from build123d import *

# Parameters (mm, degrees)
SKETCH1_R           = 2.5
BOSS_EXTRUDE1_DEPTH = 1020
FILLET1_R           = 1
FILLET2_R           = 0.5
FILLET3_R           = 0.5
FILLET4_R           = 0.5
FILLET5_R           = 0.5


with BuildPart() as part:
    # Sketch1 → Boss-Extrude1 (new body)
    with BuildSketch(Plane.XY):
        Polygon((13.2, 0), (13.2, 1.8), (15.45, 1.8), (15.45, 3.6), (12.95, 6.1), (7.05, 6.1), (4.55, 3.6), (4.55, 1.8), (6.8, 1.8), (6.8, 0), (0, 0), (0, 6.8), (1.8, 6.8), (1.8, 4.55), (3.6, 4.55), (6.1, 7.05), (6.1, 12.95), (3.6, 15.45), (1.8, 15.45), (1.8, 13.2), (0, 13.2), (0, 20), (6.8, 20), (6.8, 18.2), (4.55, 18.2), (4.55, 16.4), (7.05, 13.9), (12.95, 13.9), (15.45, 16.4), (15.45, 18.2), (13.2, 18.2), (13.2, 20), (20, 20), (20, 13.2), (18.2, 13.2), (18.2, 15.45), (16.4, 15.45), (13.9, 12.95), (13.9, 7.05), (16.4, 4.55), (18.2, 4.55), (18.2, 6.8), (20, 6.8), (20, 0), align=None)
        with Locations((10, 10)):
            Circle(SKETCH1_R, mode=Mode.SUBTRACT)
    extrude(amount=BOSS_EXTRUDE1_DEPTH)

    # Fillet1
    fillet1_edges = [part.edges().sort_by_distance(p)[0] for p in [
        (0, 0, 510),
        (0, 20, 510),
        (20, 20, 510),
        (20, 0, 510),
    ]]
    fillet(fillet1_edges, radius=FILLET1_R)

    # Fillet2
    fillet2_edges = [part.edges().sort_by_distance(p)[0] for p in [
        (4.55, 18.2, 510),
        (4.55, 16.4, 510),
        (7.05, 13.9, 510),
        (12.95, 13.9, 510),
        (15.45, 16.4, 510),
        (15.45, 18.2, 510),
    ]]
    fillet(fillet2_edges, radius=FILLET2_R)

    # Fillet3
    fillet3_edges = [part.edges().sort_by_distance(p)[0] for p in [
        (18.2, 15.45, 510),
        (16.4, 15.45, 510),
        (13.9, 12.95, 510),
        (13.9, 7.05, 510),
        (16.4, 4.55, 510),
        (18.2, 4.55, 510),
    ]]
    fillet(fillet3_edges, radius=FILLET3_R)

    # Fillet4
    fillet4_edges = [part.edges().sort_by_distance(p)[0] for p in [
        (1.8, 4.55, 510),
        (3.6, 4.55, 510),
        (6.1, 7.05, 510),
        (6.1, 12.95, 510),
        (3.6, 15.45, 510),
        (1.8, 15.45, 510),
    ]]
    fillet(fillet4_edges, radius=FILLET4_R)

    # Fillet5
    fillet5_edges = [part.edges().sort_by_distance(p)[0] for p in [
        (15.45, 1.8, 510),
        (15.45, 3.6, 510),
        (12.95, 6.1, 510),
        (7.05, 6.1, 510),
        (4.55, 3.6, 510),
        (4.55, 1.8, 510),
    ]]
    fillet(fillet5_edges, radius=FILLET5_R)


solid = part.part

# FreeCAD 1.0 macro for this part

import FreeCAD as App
import Part
import Sketcher

V = App.Vector


def edges_at(feature, points):
    """Names of the edges that pass closest to the given points."""
    edges = feature.Shape.Edges
    near = lambda p: min(range(len(edges)), key=lambda i: edges[i].distToShape(Part.Vertex(*p))[0])
    return sorted({f"Edge{near(p) + 1}" for p in points})

doc = App.newDocument("Part")
body = doc.addObject("PartDesign::Body", "Body")

sketch1 = body.newObject("Sketcher::SketchObject", "Sketch")
sketch1.AttachmentSupport = (doc.getObject("XY_Plane"), [""])
sketch1.MapMode = "FlatFace"
sketch1.addGeometry(Part.LineSegment(V(13.2, 1.8, 0), V(13.2, 0, 0)), False)
sketch1.addGeometry(Part.LineSegment(V(13.2, 0, 0), V(20, 0, 0)), False)
sketch1.addGeometry(Part.LineSegment(V(20, 0, 0), V(20, 6.8, 0)), False)
sketch1.addGeometry(Part.LineSegment(V(20, 6.8, 0), V(18.2, 6.8, 0)), False)
sketch1.addGeometry(Part.LineSegment(V(18.2, 6.8, 0), V(18.2, 4.5, 0)), False)
sketch1.addGeometry(Part.LineSegment(V(18.2, 4.5, 0), V(16.4, 4.5, 0)), False)
sketch1.addGeometry(Part.LineSegment(V(16.4, 4.5, 0), V(13.9, 7, 0)), False)
sketch1.addGeometry(Part.LineSegment(V(13.9, 7, 0), V(13.9, 12.9, 0)), False)
sketch1.addGeometry(Part.LineSegment(V(13.9, 12.9, 0), V(16.4, 15.4, 0)), False)
sketch1.addGeometry(Part.LineSegment(V(16.4, 15.4, 0), V(18.2, 15.4, 0)), False)
sketch1.addGeometry(Part.LineSegment(V(18.2, 15.4, 0), V(18.2, 13.2, 0)), False)
sketch1.addGeometry(Part.LineSegment(V(18.2, 13.2, 0), V(20, 13.2, 0)), False)
sketch1.addGeometry(Part.LineSegment(V(20, 13.2, 0), V(20, 20, 0)), False)
sketch1.addGeometry(Part.LineSegment(V(20, 20, 0), V(13.2, 20, 0)), False)
sketch1.addGeometry(Part.LineSegment(V(13.2, 20, 0), V(13.2, 18.2, 0)), False)
sketch1.addGeometry(Part.LineSegment(V(13.2, 18.2, 0), V(15.4, 18.2, 0)), False)
sketch1.addGeometry(Part.LineSegment(V(15.4, 18.2, 0), V(15.4, 16.4, 0)), False)
sketch1.addGeometry(Part.LineSegment(V(15.4, 16.4, 0), V(12.9, 13.9, 0)), False)
sketch1.addGeometry(Part.LineSegment(V(12.9, 13.9, 0), V(7, 13.9, 0)), False)
sketch1.addGeometry(Part.LineSegment(V(7, 13.9, 0), V(4.5, 16.4, 0)), False)
sketch1.addGeometry(Part.LineSegment(V(4.5, 16.4, 0), V(4.5, 18.2, 0)), False)
sketch1.addGeometry(Part.LineSegment(V(4.5, 18.2, 0), V(6.8, 18.2, 0)), False)
sketch1.addGeometry(Part.LineSegment(V(6.8, 18.2, 0), V(6.8, 20, 0)), False)
sketch1.addGeometry(Part.LineSegment(V(6.8, 20, 0), V(0, 20, 0)), False)
sketch1.addGeometry(Part.LineSegment(V(0, 20, 0), V(0, 13.2, 0)), False)
sketch1.addGeometry(Part.LineSegment(V(0, 13.2, 0), V(1.8, 13.2, 0)), False)
sketch1.addGeometry(Part.LineSegment(V(1.8, 13.2, 0), V(1.8, 15.4, 0)), False)
sketch1.addGeometry(Part.LineSegment(V(1.8, 15.4, 0), V(3.6, 15.4, 0)), False)
sketch1.addGeometry(Part.LineSegment(V(3.6, 15.4, 0), V(6.1, 12.9, 0)), False)
sketch1.addGeometry(Part.LineSegment(V(6.1, 12.9, 0), V(6.1, 7, 0)), False)
sketch1.addGeometry(Part.LineSegment(V(6.1, 7, 0), V(3.6, 4.5, 0)), False)
sketch1.addGeometry(Part.LineSegment(V(3.6, 4.5, 0), V(1.8, 4.5, 0)), False)
sketch1.addGeometry(Part.LineSegment(V(1.8, 4.5, 0), V(1.8, 6.8, 0)), False)
sketch1.addGeometry(Part.LineSegment(V(1.8, 6.8, 0), V(0, 6.8, 0)), False)
sketch1.addGeometry(Part.LineSegment(V(0, 6.8, 0), V(0, 0, 0)), False)
sketch1.addGeometry(Part.LineSegment(V(0, 0, 0), V(6.8, 0, 0)), False)
sketch1.addGeometry(Part.LineSegment(V(6.8, 0, 0), V(6.8, 1.8, 0)), False)
sketch1.addGeometry(Part.LineSegment(V(6.8, 1.8, 0), V(4.5, 1.8, 0)), False)
sketch1.addGeometry(Part.LineSegment(V(4.5, 1.8, 0), V(4.5, 3.6, 0)), False)
sketch1.addGeometry(Part.LineSegment(V(4.5, 3.6, 0), V(7, 6.1, 0)), False)
sketch1.addGeometry(Part.LineSegment(V(7, 6.1, 0), V(12.9, 6.1, 0)), False)
sketch1.addGeometry(Part.LineSegment(V(12.9, 6.1, 0), V(15.4, 3.6, 0)), False)
sketch1.addGeometry(Part.LineSegment(V(15.4, 3.6, 0), V(15.4, 1.8, 0)), False)
sketch1.addGeometry(Part.LineSegment(V(15.4, 1.8, 0), V(13.2, 1.8, 0)), False)
sketch1.addGeometry(Part.Circle(V(10, 10, 0), V(0, 0, 1), 2.5), False)
sketch1.addConstraint(Sketcher.Constraint("Coincident", 0, 2, 1, 1))
sketch1.addConstraint(Sketcher.Constraint("Coincident", 1, 2, 2, 1))
sketch1.addConstraint(Sketcher.Constraint("Coincident", 2, 2, 3, 1))
sketch1.addConstraint(Sketcher.Constraint("Coincident", 3, 2, 4, 1))
sketch1.addConstraint(Sketcher.Constraint("Coincident", 4, 2, 5, 1))
sketch1.addConstraint(Sketcher.Constraint("Coincident", 5, 2, 6, 1))
sketch1.addConstraint(Sketcher.Constraint("Coincident", 6, 2, 7, 1))
sketch1.addConstraint(Sketcher.Constraint("Coincident", 7, 2, 8, 1))
sketch1.addConstraint(Sketcher.Constraint("Coincident", 8, 2, 9, 1))
sketch1.addConstraint(Sketcher.Constraint("Coincident", 9, 2, 10, 1))
sketch1.addConstraint(Sketcher.Constraint("Coincident", 10, 2, 11, 1))
sketch1.addConstraint(Sketcher.Constraint("Coincident", 11, 2, 12, 1))
sketch1.addConstraint(Sketcher.Constraint("Coincident", 12, 2, 13, 1))
sketch1.addConstraint(Sketcher.Constraint("Coincident", 13, 2, 14, 1))
sketch1.addConstraint(Sketcher.Constraint("Coincident", 14, 2, 15, 1))
sketch1.addConstraint(Sketcher.Constraint("Coincident", 15, 2, 16, 1))
sketch1.addConstraint(Sketcher.Constraint("Coincident", 16, 2, 17, 1))
sketch1.addConstraint(Sketcher.Constraint("Coincident", 17, 2, 18, 1))
sketch1.addConstraint(Sketcher.Constraint("Coincident", 18, 2, 19, 1))
sketch1.addConstraint(Sketcher.Constraint("Coincident", 19, 2, 20, 1))
sketch1.addConstraint(Sketcher.Constraint("Coincident", 20, 2, 21, 1))
sketch1.addConstraint(Sketcher.Constraint("Coincident", 21, 2, 22, 1))
sketch1.addConstraint(Sketcher.Constraint("Coincident", 22, 2, 23, 1))
sketch1.addConstraint(Sketcher.Constraint("Coincident", 23, 2, 24, 1))
sketch1.addConstraint(Sketcher.Constraint("Coincident", 24, 2, 25, 1))
sketch1.addConstraint(Sketcher.Constraint("Coincident", 25, 2, 26, 1))
sketch1.addConstraint(Sketcher.Constraint("Coincident", 26, 2, 27, 1))
sketch1.addConstraint(Sketcher.Constraint("Coincident", 27, 2, 28, 1))
sketch1.addConstraint(Sketcher.Constraint("Coincident", 28, 2, 29, 1))
sketch1.addConstraint(Sketcher.Constraint("Coincident", 29, 2, 30, 1))
sketch1.addConstraint(Sketcher.Constraint("Coincident", 30, 2, 31, 1))
sketch1.addConstraint(Sketcher.Constraint("Coincident", 31, 2, 32, 1))
sketch1.addConstraint(Sketcher.Constraint("Coincident", 32, 2, 33, 1))
sketch1.addConstraint(Sketcher.Constraint("Coincident", 33, 2, 34, 1))
sketch1.addConstraint(Sketcher.Constraint("Coincident", 34, 2, 35, 1))
sketch1.addConstraint(Sketcher.Constraint("Coincident", 35, 2, 36, 1))
sketch1.addConstraint(Sketcher.Constraint("Coincident", 36, 2, 37, 1))
sketch1.addConstraint(Sketcher.Constraint("Coincident", 37, 2, 38, 1))
sketch1.addConstraint(Sketcher.Constraint("Coincident", 38, 2, 39, 1))
sketch1.addConstraint(Sketcher.Constraint("Coincident", 39, 2, 40, 1))
sketch1.addConstraint(Sketcher.Constraint("Coincident", 40, 2, 41, 1))
sketch1.addConstraint(Sketcher.Constraint("Coincident", 41, 2, 42, 1))
sketch1.addConstraint(Sketcher.Constraint("Coincident", 42, 2, 43, 1))
sketch1.addConstraint(Sketcher.Constraint("Coincident", 43, 2, 0, 1))
sketch1.addConstraint(Sketcher.Constraint("Vertical", 0))
sketch1.addConstraint(Sketcher.Constraint("Horizontal", 1))
sketch1.addConstraint(Sketcher.Constraint("Vertical", 2))
sketch1.addConstraint(Sketcher.Constraint("Horizontal", 3))
sketch1.addConstraint(Sketcher.Constraint("Vertical", 4))
sketch1.addConstraint(Sketcher.Constraint("Horizontal", 5))
sketch1.addConstraint(Sketcher.Constraint("Vertical", 7))
sketch1.addConstraint(Sketcher.Constraint("Horizontal", 9))
sketch1.addConstraint(Sketcher.Constraint("Vertical", 10))
sketch1.addConstraint(Sketcher.Constraint("Horizontal", 11))
sketch1.addConstraint(Sketcher.Constraint("Vertical", 12))
sketch1.addConstraint(Sketcher.Constraint("Horizontal", 13))
sketch1.addConstraint(Sketcher.Constraint("Vertical", 14))
sketch1.addConstraint(Sketcher.Constraint("Horizontal", 15))
sketch1.addConstraint(Sketcher.Constraint("Vertical", 16))
sketch1.addConstraint(Sketcher.Constraint("Horizontal", 18))
sketch1.addConstraint(Sketcher.Constraint("Vertical", 20))
sketch1.addConstraint(Sketcher.Constraint("Horizontal", 21))
sketch1.addConstraint(Sketcher.Constraint("Vertical", 22))
sketch1.addConstraint(Sketcher.Constraint("Horizontal", 23))
sketch1.addConstraint(Sketcher.Constraint("Vertical", 24))
sketch1.addConstraint(Sketcher.Constraint("Horizontal", 25))
sketch1.addConstraint(Sketcher.Constraint("Vertical", 26))
sketch1.addConstraint(Sketcher.Constraint("Horizontal", 27))
sketch1.addConstraint(Sketcher.Constraint("Vertical", 29))
sketch1.addConstraint(Sketcher.Constraint("Horizontal", 31))
sketch1.addConstraint(Sketcher.Constraint("Vertical", 32))
sketch1.addConstraint(Sketcher.Constraint("Horizontal", 33))
sketch1.addConstraint(Sketcher.Constraint("Vertical", 34))
sketch1.addConstraint(Sketcher.Constraint("Horizontal", 35))
sketch1.addConstraint(Sketcher.Constraint("Vertical", 36))
sketch1.addConstraint(Sketcher.Constraint("Horizontal", 37))
sketch1.addConstraint(Sketcher.Constraint("Vertical", 38))
sketch1.addConstraint(Sketcher.Constraint("Horizontal", 40))
sketch1.addConstraint(Sketcher.Constraint("Vertical", 42))
sketch1.addConstraint(Sketcher.Constraint("Horizontal", 43))
sketch1.addConstraint(Sketcher.Constraint("Coincident", 34, 2, -1, 1))
sketch1.addConstraint(Sketcher.Constraint("PointOnObject", 0, 2, -1))
sketch1.addConstraint(Sketcher.Constraint("PointOnObject", 23, 2, -2))
sketch1.addConstraint(Sketcher.Constraint("Perpendicular", 6, 8))
sketch1.addConstraint(Sketcher.Constraint("Parallel", 8, 17))
sketch1.addConstraint(Sketcher.Constraint("Perpendicular", 17, 19))
sketch1.addConstraint(Sketcher.Constraint("Parallel", 19, 28))
sketch1.addConstraint(Sketcher.Constraint("Perpendicular", 28, 30))
sketch1.addConstraint(Sketcher.Constraint("Parallel", 30, 39))
sketch1.addConstraint(Sketcher.Constraint("Perpendicular", 39, 41))
sketch1.addConstraint(Sketcher.Constraint("Horizontal", 16, 2, 19, 2))
sketch1.addConstraint(Sketcher.Constraint("Horizontal", 15, 2, 20, 2))
sketch1.addConstraint(Sketcher.Constraint("Horizontal", 13, 2, 22, 2))
sketch1.addConstraint(Sketcher.Constraint("Horizontal", 11, 2, 24, 2))
sketch1.addConstraint(Sketcher.Constraint("Horizontal", 9, 2, 26, 2))
sketch1.addConstraint(Sketcher.Constraint("Horizontal", 7, 2, 28, 2))
sketch1.addConstraint(Sketcher.Constraint("Horizontal", 6, 2, 29, 2))
sketch1.addConstraint(Sketcher.Constraint("Horizontal", 5, 2, 30, 2))
sketch1.addConstraint(Sketcher.Constraint("Horizontal", 3, 2, 32, 2))
sketch1.addConstraint(Sketcher.Constraint("Horizontal", 38, 2, 41, 2))
sketch1.addConstraint(Sketcher.Constraint("Horizontal", 37, 2, 42, 2))
sketch1.addConstraint(Sketcher.Constraint("Vertical", 5, 2, 8, 2))
sketch1.addConstraint(Sketcher.Constraint("Vertical", 4, 2, 9, 2))
sketch1.addConstraint(Sketcher.Constraint("Vertical", 2, 2, 11, 2))
sketch1.addConstraint(Sketcher.Constraint("Vertical", 0, 2, 13, 2))
sketch1.addConstraint(Sketcher.Constraint("Vertical", 27, 2, 30, 2))
sketch1.addConstraint(Sketcher.Constraint("Vertical", 26, 2, 31, 2))
sketch1.addConstraint(Sketcher.Constraint("Vertical", 22, 2, 35, 2))
sketch1.addConstraint(Sketcher.Constraint("Vertical", 20, 2, 37, 2))
sketch1.addConstraint(Sketcher.Constraint("Vertical", 18, 2, 39, 2))
sketch1.addConstraint(Sketcher.Constraint("Vertical", 17, 2, 40, 2))
sketch1.addConstraint(Sketcher.Constraint("Equal", 3, 5))
sketch1.addConstraint(Sketcher.Constraint("Equal", 15, 21))
sketch1.addConstraint(Sketcher.Constraint("Equal", 13, 23))
sketch1.addConstraint(Sketcher.Constraint("Equal", 11, 25))
sketch1.addConstraint(Sketcher.Constraint("Equal", 25, 27))
sketch1.addConstraint(Sketcher.Constraint("Equal", 33, 0))
sketch1.addConstraint(Sketcher.Constraint("Equal", 35, 2))
sketch1.addConstraint(Sketcher.Constraint("Equal", 43, 4))
sketch1.addConstraint(Sketcher.Constraint("Equal", 40, 7))
sketch1.addConstraint(Sketcher.Constraint("Equal", 4, 10))
sketch1.addConstraint(Sketcher.Constraint("Equal", 2, 12))
sketch1.addConstraint(Sketcher.Constraint("Equal", 0, 14))
sketch1.addConstraint(Sketcher.Constraint("Equal", 14, 16))
sketch1.addConstraint(Sketcher.Constraint("Equal", 36, 38))
sketch1.addConstraint(Sketcher.Constraint("Equal", 8, 17))
sketch1.addConstraint(Sketcher.Constraint("Diameter", 44, 5.0))
sketch1.addConstraint(Sketcher.Constraint("DistanceX", 1, 1, 1, 2, 6.8))
sketch1.addConstraint(Sketcher.Constraint("DistanceX", 3, 2, 3, 1, 1.8))
sketch1.addConstraint(Sketcher.Constraint("DistanceX", 18, 2, 18, 1, 5.9))
sketch1.addConstraint(Sketcher.Constraint("DistanceX", -1, 1, 44, 3, 10.0))
sketch1.addConstraint(Sketcher.Constraint("DistanceY", -1, 1, 44, 3, 10.0))
sketch1.addConstraint(Sketcher.Constraint("DistanceX", -1, 1, 1, 2, 20.0))
sketch1.addConstraint(Sketcher.Constraint("DistanceX", 15, 1, 15, 2, 2.25))
pad1 = body.newObject("PartDesign::Pad", "Pad")
pad1.Profile = sketch1
pad1.Length = 1020
doc.recompute()

fillet = body.newObject("PartDesign::Fillet", "Fillet")
fillet.Base = (pad1, edges_at(pad1, [
    (0, 0, 510),
    (0, 20, 510),
    (20, 20, 510),
    (20, 0, 510),
]))
fillet.Radius = 1
doc.recompute()

fillet2 = body.newObject("PartDesign::Fillet", "Fillet001")
fillet2.Base = (fillet, edges_at(fillet, [
    (4.55, 18.2, 510),
    (4.55, 16.4, 510),
    (7.05, 13.9, 510),
    (12.95, 13.9, 510),
    (15.45, 16.4, 510),
    (15.45, 18.2, 510),
]))
fillet2.Radius = 0.5
doc.recompute()

fillet3 = body.newObject("PartDesign::Fillet", "Fillet002")
fillet3.Base = (fillet2, edges_at(fillet2, [
    (18.2, 15.45, 510),
    (16.4, 15.45, 510),
    (13.9, 12.95, 510),
    (13.9, 7.05, 510),
    (16.4, 4.55, 510),
    (18.2, 4.55, 510),
]))
fillet3.Radius = 0.5
doc.recompute()

fillet4 = body.newObject("PartDesign::Fillet", "Fillet003")
fillet4.Base = (fillet3, edges_at(fillet3, [
    (1.8, 4.55, 510),
    (3.6, 4.55, 510),
    (6.1, 7.05, 510),
    (6.1, 12.95, 510),
    (3.6, 15.45, 510),
    (1.8, 15.45, 510),
]))
fillet4.Radius = 0.5
doc.recompute()

fillet5 = body.newObject("PartDesign::Fillet", "Fillet004")
fillet5.Base = (fillet4, edges_at(fillet4, [
    (15.45, 1.8, 510),
    (15.45, 3.6, 510),
    (12.95, 6.1, 510),
    (7.05, 6.1, 510),
    (4.55, 3.6, 510),
    (4.55, 1.8, 510),
]))
fillet5.Radius = 0.5

doc.recompute()
